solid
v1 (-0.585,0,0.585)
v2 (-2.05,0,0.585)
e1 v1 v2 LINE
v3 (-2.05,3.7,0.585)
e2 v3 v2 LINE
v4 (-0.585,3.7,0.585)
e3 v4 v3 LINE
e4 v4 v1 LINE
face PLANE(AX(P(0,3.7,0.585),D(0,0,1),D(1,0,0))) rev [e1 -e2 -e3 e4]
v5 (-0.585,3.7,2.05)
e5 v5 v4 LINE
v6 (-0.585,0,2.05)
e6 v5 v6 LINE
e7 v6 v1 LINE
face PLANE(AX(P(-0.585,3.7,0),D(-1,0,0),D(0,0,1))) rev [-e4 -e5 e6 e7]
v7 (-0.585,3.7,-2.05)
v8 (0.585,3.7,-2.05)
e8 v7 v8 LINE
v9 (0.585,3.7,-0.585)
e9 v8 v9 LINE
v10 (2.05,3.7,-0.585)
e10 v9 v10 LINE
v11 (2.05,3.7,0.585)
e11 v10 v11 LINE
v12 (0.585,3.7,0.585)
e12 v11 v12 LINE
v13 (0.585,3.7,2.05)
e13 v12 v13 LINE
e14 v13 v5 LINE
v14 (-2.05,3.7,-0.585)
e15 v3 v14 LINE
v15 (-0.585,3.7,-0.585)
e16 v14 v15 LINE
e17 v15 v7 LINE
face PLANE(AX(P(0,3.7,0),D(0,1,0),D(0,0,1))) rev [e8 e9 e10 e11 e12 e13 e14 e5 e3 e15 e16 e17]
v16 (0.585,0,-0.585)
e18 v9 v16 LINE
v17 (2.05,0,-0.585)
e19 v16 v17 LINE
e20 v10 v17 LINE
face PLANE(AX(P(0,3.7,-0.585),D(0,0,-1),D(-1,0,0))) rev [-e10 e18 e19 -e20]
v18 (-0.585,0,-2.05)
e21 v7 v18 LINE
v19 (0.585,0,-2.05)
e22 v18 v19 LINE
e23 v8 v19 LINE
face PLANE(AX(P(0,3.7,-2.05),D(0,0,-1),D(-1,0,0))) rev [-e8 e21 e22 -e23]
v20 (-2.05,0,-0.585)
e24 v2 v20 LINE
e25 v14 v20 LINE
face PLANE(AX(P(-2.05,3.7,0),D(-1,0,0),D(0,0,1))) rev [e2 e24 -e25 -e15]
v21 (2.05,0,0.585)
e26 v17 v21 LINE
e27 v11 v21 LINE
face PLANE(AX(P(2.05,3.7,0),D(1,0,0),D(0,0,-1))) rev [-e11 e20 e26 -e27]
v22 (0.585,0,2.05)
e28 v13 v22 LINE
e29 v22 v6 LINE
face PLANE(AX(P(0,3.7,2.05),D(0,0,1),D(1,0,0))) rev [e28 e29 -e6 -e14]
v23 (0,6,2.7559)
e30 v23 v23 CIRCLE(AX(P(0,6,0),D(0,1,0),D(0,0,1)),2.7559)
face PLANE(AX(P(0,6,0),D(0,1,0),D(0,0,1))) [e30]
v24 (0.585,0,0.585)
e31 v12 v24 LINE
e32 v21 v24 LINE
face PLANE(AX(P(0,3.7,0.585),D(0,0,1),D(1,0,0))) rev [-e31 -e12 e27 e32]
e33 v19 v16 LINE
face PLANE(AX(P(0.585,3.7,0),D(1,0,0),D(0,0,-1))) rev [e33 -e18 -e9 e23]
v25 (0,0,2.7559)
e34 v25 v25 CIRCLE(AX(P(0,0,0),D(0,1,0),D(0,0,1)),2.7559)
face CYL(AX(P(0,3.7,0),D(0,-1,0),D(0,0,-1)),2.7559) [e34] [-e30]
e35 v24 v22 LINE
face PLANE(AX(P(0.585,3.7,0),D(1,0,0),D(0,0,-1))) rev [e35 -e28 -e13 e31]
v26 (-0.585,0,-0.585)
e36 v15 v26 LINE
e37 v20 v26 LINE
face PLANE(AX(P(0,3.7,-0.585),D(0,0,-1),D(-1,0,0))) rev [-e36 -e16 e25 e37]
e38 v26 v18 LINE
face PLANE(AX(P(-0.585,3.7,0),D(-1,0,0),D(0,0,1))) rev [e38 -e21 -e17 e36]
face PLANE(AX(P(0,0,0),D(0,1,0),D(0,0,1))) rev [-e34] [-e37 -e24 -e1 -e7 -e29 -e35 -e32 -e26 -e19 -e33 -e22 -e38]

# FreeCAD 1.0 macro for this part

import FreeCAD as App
import Part
import Sketcher
from FreeCAD import Vector
Q = App.Units.Quantity


def add_polygon(sketch, points):
    """Adds a closed chain of lines whose ends are joined by coincident constraints."""
    first, n = sketch.GeometryCount, len(points)
    for a, b in zip(points, points[1:] + points[:1]):
        sketch.addGeometry(Part.LineSegment(App.Vector(*a, 0), App.Vector(*b, 0)), False)
    for i in range(n):
        sketch.addConstraint(Sketcher.Constraint("Coincident", first + i, 2, first + (i + 1) % n, 1))

doc = App.newDocument("Part")
body = doc.addObject("PartDesign::Body", "Body")

# Sketch on XZ plane
sketch1 = body.newObject("Sketcher::SketchObject", "Sketch")
sketch1.AttachmentSupport = (doc.getObject("XZ_Plane"), [""])
sketch1.MapMode = "FlatFace"
sketch1.addGeometry(Part.Circle(Vector(0, 0, 0), Vector(0, 0, 1), 2.8), False)  # 0
add_polygon(sketch1, [(-0.6, 0.6), (-2, 0.6), (-2, -0.6), (-0.6, -0.6), (-0.6, -2), (0.6, -2), (0.6, -0.6), (2, -0.6), (2, 0.6), (0.6, 0.6), (0.6, 2), (-0.6, 2)])  # lines 1-12
sketch1.addConstraint(Sketcher.Constraint("Horizontal", 1))
sketch1.addConstraint(Sketcher.Constraint("Vertical", 2))
sketch1.addConstraint(Sketcher.Constraint("Horizontal", 3))
sketch1.addConstraint(Sketcher.Constraint("Vertical", 4))
sketch1.addConstraint(Sketcher.Constraint("Horizontal", 5))
sketch1.addConstraint(Sketcher.Constraint("Vertical", 6))
sketch1.addConstraint(Sketcher.Constraint("Horizontal", 7))
sketch1.addConstraint(Sketcher.Constraint("Vertical", 8))
sketch1.addConstraint(Sketcher.Constraint("Horizontal", 9))
sketch1.addConstraint(Sketcher.Constraint("Vertical", 10))
sketch1.addConstraint(Sketcher.Constraint("Horizontal", 11))
sketch1.addConstraint(Sketcher.Constraint("Vertical", 12))
sketch1.addConstraint(Sketcher.Constraint("Coincident", 0, 3, -1, 1))
sketch1.addConstraint(Sketcher.Constraint("Symmetric", 1, 2, 7, 2, -1, 1))
sketch1.addConstraint(Sketcher.Constraint("Symmetric", 3, 2, 9, 2, -1, 1))
sketch1.addConstraint(Sketcher.Constraint("Symmetric", 5, 2, 11, 2, -1, 1))
sketch1.addConstraint(Sketcher.Constraint("Symmetric", 3, 2, 6, 2, -2))
sketch1.addConstraint(Sketcher.Constraint("Equal", 11, 2))
sketch1.addConstraint(Sketcher.Constraint("Equal", 9, 4))
sketch1.addConstraint(Sketcher.Constraint("Diameter", 0, Q("5.5118 mm")))
sketch1.addConstraint(Sketcher.Constraint("DistanceX", 5, 1, 5, 2, Q("1.17 mm")))
sketch1.addConstraint(Sketcher.Constraint("DistanceX", 1, 2, 1, 1, Q("1.465 mm")))
pad1 = body.newObject("PartDesign::Pad", "Pad")
pad1.Profile = sketch1
pad1.Length = 3.7
pad1.Reversed = True

# Sketch on XZ plane
sketch2 = body.newObject("Sketcher::SketchObject", "Sketch001")
sketch2.AttachmentSupport = (doc.getObject("XZ_Plane"), [""])
sketch2.MapMode = "FlatFace"
sketch2.AttachmentOffset = App.Placement(Vector(0, 0, -3.7), App.Rotation())
sketch2.addGeometry(Part.Circle(Vector(0, 0, 0), Vector(0, 0, 1), 2.8), False)
sketch2.addConstraint(Sketcher.Constraint("Coincident", 0, 3, -1, 1))
sketch2.addConstraint(Sketcher.Constraint("Diameter", 0, Q("5.5118 mm")))
pad2 = body.newObject("PartDesign::Pad", "Pad001")
pad2.Profile = sketch2
pad2.Length = 2.3
pad2.Reversed = True

doc.recompute()
